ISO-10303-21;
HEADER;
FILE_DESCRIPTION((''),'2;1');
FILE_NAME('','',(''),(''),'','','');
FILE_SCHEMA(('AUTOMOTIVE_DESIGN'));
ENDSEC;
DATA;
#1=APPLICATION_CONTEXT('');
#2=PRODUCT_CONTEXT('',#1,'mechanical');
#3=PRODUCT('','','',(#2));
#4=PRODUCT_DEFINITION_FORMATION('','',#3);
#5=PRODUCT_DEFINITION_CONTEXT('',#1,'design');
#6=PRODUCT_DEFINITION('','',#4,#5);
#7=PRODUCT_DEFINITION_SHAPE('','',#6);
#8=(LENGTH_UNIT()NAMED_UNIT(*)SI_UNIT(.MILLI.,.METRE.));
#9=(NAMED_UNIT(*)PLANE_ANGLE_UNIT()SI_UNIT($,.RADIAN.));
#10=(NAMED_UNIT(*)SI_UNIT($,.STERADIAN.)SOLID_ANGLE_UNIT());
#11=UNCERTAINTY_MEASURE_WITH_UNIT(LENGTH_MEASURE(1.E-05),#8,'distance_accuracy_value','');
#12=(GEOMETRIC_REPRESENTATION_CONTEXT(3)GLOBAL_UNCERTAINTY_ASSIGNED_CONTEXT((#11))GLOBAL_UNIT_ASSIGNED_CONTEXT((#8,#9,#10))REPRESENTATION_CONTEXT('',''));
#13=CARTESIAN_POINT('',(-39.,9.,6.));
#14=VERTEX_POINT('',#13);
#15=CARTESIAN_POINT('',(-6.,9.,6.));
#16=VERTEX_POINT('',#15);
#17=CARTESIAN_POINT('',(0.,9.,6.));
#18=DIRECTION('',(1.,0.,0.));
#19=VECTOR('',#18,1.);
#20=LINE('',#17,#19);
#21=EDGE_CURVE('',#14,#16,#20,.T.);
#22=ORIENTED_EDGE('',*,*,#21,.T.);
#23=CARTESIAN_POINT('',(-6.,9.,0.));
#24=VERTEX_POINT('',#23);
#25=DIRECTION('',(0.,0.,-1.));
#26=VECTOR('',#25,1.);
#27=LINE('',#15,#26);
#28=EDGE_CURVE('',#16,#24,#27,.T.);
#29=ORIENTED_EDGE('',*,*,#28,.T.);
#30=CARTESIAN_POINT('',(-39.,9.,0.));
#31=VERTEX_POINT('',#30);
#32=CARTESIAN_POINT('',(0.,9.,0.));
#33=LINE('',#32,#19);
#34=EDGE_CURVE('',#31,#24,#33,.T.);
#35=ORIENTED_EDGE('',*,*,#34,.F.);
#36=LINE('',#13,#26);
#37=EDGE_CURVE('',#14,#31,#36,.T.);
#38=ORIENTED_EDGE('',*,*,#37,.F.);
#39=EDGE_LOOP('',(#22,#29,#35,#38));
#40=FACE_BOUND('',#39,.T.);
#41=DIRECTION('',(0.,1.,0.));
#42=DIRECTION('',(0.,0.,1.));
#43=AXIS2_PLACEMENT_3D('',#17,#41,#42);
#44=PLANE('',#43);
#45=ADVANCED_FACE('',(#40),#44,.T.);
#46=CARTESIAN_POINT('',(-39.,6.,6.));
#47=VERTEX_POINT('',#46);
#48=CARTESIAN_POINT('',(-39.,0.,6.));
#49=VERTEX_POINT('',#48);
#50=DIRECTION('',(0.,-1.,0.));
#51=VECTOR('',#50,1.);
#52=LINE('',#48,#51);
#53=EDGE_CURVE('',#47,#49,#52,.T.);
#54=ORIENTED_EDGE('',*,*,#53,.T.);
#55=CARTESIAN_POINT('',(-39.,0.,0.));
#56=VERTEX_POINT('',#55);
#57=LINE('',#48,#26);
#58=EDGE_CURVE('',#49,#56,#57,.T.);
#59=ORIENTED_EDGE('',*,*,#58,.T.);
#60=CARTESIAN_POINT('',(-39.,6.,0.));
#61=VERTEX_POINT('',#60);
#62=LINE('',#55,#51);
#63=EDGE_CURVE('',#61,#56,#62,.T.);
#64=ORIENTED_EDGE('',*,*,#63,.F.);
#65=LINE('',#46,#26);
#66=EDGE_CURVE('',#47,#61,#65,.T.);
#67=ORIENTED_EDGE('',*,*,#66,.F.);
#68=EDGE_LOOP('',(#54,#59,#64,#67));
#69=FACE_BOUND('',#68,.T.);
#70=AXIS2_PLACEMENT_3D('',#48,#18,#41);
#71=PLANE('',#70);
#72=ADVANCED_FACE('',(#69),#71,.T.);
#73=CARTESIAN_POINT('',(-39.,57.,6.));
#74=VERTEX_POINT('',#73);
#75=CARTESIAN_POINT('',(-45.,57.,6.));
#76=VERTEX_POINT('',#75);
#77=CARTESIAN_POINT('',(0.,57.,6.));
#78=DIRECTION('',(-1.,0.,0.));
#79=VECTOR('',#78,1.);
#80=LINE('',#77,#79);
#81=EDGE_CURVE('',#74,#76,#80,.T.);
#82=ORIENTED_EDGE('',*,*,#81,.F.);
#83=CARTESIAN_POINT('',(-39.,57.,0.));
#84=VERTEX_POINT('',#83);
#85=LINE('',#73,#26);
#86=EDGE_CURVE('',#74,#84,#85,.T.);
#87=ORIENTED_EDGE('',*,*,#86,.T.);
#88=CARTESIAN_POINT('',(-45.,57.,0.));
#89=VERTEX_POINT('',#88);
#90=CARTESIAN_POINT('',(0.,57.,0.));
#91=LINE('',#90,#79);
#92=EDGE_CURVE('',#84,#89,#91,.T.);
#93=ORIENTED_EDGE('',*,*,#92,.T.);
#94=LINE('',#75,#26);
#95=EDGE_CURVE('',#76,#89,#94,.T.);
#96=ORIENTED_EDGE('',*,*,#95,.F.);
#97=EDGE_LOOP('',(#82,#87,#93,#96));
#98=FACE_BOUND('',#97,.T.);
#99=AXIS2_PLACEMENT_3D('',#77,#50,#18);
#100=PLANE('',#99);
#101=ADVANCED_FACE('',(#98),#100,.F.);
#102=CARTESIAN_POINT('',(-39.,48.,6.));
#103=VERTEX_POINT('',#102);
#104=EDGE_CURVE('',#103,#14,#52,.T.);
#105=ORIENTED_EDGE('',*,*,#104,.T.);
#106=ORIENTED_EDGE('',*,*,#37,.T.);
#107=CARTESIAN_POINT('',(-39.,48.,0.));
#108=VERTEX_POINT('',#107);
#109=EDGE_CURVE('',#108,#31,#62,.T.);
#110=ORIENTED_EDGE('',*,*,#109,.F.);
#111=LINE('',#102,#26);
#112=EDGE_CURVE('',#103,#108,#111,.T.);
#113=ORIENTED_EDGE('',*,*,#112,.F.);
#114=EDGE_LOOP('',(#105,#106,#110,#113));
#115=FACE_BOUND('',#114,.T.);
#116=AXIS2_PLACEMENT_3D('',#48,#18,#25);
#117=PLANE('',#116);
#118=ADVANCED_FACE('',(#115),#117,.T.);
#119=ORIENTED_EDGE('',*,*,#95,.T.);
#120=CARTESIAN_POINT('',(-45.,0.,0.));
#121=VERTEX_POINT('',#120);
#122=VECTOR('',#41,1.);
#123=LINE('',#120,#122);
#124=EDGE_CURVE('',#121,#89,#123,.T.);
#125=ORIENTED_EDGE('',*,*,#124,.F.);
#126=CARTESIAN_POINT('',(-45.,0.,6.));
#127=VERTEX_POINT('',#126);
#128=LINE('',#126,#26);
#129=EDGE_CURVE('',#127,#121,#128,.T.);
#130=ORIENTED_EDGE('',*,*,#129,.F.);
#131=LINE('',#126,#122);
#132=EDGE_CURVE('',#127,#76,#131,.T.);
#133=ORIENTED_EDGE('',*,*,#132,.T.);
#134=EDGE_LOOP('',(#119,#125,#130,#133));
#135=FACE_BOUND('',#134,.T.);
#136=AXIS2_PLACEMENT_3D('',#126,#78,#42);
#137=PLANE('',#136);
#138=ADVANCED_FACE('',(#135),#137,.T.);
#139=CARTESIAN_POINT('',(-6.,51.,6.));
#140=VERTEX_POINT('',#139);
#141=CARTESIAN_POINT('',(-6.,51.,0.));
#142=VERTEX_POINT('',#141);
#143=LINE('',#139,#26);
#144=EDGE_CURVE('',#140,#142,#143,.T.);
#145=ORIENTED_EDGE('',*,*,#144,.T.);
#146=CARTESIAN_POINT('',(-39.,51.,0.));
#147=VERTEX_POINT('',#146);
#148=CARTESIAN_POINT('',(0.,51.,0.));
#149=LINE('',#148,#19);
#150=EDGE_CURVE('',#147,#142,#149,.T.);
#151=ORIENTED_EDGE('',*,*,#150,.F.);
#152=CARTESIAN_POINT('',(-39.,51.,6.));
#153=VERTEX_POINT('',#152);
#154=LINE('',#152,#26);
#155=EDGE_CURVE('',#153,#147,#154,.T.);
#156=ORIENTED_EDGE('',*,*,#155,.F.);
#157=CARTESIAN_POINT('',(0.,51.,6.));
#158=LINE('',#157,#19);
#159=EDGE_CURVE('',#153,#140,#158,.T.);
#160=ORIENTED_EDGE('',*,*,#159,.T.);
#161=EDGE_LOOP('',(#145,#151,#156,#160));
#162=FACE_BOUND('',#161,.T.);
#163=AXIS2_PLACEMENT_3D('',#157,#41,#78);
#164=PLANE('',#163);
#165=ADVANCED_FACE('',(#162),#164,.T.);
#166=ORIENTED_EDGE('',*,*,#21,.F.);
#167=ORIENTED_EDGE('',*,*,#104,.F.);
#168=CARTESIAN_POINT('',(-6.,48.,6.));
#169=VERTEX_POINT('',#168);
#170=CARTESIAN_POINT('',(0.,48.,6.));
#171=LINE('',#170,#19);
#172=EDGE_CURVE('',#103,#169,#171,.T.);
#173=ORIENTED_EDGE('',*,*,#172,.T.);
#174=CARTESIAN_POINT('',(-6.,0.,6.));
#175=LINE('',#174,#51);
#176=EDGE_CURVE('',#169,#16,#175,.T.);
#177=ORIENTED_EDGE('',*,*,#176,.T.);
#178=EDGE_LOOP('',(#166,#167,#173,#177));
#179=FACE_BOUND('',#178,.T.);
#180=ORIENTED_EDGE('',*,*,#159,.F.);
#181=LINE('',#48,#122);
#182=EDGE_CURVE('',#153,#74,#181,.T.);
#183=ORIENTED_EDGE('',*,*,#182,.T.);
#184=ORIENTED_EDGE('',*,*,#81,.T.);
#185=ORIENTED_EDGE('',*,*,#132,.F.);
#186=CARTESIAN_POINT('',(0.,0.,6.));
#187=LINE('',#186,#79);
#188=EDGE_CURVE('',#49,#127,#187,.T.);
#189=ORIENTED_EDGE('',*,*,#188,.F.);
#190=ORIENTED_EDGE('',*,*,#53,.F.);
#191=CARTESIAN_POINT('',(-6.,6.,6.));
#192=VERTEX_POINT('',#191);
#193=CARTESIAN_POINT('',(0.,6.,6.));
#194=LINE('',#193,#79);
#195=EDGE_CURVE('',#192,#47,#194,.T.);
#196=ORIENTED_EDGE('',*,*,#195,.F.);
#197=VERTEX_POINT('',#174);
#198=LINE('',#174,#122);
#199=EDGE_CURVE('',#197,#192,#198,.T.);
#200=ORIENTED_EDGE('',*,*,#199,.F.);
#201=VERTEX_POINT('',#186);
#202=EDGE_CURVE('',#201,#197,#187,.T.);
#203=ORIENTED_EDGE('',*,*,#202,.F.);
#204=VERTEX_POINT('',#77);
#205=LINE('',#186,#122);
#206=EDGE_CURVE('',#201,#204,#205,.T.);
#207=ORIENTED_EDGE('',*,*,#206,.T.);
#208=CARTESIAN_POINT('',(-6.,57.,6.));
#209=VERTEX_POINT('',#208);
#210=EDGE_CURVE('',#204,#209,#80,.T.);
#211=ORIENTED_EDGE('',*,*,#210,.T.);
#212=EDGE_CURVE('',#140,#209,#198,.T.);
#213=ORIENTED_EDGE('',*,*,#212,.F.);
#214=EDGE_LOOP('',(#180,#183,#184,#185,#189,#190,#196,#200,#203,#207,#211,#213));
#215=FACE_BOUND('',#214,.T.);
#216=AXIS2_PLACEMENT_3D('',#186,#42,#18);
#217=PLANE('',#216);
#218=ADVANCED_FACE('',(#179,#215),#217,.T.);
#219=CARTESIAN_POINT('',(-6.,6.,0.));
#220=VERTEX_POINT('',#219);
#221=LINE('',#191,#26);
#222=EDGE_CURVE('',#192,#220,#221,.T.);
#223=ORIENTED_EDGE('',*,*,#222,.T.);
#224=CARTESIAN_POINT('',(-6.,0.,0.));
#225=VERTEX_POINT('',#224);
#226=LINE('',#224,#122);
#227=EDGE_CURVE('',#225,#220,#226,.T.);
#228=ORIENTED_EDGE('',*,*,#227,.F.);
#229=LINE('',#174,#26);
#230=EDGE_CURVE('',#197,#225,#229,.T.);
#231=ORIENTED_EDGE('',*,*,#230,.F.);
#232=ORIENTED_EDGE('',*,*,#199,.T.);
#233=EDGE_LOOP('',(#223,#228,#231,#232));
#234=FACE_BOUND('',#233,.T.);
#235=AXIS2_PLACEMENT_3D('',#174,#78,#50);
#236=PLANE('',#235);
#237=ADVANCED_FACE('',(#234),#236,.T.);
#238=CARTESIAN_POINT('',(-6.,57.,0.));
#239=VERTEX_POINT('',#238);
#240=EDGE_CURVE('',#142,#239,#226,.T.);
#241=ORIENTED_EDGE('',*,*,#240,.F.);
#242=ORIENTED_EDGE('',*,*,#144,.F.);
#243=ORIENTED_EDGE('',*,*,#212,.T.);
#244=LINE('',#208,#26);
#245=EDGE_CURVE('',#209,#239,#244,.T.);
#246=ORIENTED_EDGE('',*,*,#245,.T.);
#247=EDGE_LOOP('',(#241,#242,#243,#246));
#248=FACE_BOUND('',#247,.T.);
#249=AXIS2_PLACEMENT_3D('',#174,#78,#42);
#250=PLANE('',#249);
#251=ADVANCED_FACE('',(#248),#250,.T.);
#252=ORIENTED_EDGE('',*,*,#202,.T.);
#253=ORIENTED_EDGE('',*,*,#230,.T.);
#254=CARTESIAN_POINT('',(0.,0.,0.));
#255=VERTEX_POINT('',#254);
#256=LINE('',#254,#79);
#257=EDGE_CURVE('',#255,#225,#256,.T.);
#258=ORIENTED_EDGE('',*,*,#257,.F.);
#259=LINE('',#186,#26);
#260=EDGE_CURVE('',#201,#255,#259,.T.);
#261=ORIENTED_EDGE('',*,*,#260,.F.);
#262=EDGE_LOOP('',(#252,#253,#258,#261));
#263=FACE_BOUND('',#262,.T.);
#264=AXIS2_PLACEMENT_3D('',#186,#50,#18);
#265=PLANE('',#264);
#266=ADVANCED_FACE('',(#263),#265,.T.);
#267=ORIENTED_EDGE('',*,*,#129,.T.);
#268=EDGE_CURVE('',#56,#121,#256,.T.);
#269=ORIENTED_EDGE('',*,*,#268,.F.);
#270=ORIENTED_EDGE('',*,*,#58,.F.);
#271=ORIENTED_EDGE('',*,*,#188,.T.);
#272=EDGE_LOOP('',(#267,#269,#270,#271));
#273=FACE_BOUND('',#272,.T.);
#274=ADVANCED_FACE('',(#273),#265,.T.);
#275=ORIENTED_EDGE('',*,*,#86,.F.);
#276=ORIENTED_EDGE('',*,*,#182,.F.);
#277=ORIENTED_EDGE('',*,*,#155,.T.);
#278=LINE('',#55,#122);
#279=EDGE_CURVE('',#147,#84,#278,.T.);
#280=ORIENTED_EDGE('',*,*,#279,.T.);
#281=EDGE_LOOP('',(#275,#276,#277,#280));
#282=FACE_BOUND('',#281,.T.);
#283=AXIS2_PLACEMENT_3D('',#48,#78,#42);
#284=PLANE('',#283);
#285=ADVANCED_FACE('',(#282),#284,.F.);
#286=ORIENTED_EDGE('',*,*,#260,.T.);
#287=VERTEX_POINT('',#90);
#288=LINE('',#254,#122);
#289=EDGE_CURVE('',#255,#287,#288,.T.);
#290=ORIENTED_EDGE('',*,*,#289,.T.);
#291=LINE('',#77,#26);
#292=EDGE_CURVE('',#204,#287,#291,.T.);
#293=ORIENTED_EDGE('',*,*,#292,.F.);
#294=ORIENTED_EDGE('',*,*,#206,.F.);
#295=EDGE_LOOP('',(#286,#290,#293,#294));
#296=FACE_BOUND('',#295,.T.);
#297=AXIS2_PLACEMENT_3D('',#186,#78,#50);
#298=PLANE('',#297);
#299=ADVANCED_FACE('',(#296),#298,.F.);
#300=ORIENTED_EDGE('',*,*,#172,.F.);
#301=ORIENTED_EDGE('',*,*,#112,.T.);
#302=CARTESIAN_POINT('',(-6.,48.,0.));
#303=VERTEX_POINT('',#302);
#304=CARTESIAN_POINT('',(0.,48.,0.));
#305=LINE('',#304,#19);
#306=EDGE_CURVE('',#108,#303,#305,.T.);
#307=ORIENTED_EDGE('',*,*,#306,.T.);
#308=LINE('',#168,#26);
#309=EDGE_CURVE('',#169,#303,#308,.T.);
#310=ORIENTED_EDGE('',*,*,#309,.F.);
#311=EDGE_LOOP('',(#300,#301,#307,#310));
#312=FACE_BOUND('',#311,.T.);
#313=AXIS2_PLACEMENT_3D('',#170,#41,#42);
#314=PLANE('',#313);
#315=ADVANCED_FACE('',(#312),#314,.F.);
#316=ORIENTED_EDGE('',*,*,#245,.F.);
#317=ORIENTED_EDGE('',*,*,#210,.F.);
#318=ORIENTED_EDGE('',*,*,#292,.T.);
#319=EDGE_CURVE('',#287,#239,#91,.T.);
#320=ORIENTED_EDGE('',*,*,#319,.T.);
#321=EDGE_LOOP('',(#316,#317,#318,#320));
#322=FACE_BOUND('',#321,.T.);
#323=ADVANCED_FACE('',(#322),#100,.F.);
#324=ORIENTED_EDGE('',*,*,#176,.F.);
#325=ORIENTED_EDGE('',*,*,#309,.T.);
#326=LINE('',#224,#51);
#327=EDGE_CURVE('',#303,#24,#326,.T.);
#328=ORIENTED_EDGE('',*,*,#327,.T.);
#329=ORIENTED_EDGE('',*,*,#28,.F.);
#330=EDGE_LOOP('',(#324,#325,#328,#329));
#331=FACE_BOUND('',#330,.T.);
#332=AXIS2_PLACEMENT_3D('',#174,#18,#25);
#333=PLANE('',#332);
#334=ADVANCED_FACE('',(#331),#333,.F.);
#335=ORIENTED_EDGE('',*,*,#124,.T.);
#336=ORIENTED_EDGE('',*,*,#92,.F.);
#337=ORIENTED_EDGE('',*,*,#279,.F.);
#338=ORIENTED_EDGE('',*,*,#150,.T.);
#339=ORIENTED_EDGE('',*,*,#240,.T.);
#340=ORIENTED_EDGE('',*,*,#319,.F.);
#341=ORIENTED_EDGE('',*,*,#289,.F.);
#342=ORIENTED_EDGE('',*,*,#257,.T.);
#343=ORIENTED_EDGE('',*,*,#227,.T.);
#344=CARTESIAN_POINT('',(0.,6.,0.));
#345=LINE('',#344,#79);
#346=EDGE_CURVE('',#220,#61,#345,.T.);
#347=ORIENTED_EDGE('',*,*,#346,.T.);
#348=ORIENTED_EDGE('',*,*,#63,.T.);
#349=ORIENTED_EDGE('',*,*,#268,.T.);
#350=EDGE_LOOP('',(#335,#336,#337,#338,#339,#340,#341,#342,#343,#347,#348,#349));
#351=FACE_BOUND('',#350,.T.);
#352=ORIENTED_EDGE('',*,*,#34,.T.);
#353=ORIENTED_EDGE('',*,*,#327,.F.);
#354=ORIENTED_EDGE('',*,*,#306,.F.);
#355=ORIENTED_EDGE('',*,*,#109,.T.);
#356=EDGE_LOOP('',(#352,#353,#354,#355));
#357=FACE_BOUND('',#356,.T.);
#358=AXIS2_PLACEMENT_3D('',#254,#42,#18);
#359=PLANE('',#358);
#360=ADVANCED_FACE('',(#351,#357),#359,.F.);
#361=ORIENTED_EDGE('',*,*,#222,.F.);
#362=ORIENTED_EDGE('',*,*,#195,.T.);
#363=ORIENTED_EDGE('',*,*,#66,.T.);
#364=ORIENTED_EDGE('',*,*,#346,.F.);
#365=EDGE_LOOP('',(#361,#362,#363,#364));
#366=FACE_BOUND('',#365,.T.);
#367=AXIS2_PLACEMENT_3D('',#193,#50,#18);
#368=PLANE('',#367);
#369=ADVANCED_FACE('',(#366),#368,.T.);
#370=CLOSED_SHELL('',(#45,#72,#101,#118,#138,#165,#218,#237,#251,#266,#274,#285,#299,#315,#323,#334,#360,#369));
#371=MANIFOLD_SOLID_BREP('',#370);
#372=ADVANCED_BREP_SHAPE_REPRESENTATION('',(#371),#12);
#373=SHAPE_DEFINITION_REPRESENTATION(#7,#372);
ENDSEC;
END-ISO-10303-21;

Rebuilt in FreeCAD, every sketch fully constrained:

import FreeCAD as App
import Part
import Sketcher

doc = App.newDocument("Part")
body = doc.addObject("PartDesign::Body", "Body")

# Sketch on XY plane
sketch1 = body.newObject("Sketcher::SketchObject", "Sketch")
sketch1.AttachmentSupport = (doc.getObject("XY_Plane"), [""])
sketch1.MapMode = "FlatFace"
sketch1.addGeometry([
    Part.LineSegment(App.Vector(-6, 0, 0), App.Vector(0, 0, 0)),  # 0
    Part.LineSegment(App.Vector(0, 0, 0), App.Vector(0, 57, 0)),  # 1
    Part.LineSegment(App.Vector(0, 57, 0), App.Vector(-6, 57, 0)),  # 2
    Part.LineSegment(App.Vector(-6, 57, 0), App.Vector(-6, 51, 0)),  # 3
    Part.LineSegment(App.Vector(-6, 51, 0), App.Vector(-39, 51, 0)),  # 4
    Part.LineSegment(App.Vector(-39, 51, 0), App.Vector(-39, 57, 0)),  # 5
    Part.LineSegment(App.Vector(-39, 57, 0), App.Vector(-45, 57, 0)),  # 6
    Part.LineSegment(App.Vector(-45, 57, 0), App.Vector(-45, 0, 0)),  # 7
    Part.LineSegment(App.Vector(-45, 0, 0), App.Vector(-39, 0, 0)),  # 8
    Part.LineSegment(App.Vector(-39, 0, 0), App.Vector(-39, 6, 0)),  # 9
    Part.LineSegment(App.Vector(-39, 6, 0), App.Vector(-6, 6, 0)),  # 10
    Part.LineSegment(App.Vector(-6, 6, 0), App.Vector(-6, 0, 0)),  # 11
    Part.LineSegment(App.Vector(-6, 9, 0), App.Vector(-39, 9, 0)),  # 12
    Part.LineSegment(App.Vector(-39, 9, 0), App.Vector(-39, 48, 0)),  # 13
    Part.LineSegment(App.Vector(-39, 48, 0), App.Vector(-6, 48, 0)),  # 14
    Part.LineSegment(App.Vector(-6, 48, 0), App.Vector(-6, 9, 0)),  # 15
], False)
sketch1.addConstraint([
    Sketcher.Constraint("Coincident", 0, 2, 1, 1),
    Sketcher.Constraint("Coincident", 1, 2, 2, 1),
    Sketcher.Constraint("Coincident", 2, 2, 3, 1),
    Sketcher.Constraint("Coincident", 3, 2, 4, 1),
    Sketcher.Constraint("Coincident", 4, 2, 5, 1),
    Sketcher.Constraint("Coincident", 5, 2, 6, 1),
    Sketcher.Constraint("Coincident", 6, 2, 7, 1),
    Sketcher.Constraint("Coincident", 7, 2, 8, 1),
    Sketcher.Constraint("Coincident", 8, 2, 9, 1),
    Sketcher.Constraint("Coincident", 9, 2, 10, 1),
    Sketcher.Constraint("Coincident", 10, 2, 11, 1),
    Sketcher.Constraint("Coincident", 11, 2, 0, 1),
    Sketcher.Constraint("Coincident", 12, 2, 13, 1),
    Sketcher.Constraint("Coincident", 13, 2, 14, 1),
    Sketcher.Constraint("Coincident", 14, 2, 15, 1),
    Sketcher.Constraint("Coincident", 15, 2, 12, 1),
    Sketcher.Constraint("Horizontal", 0),
    Sketcher.Constraint("Vertical", 1),
    Sketcher.Constraint("Horizontal", 2),
    Sketcher.Constraint("Vertical", 3),
    Sketcher.Constraint("Horizontal", 4),
    Sketcher.Constraint("Vertical", 5),
    Sketcher.Constraint("Horizontal", 6),
    Sketcher.Constraint("Vertical", 7),
    Sketcher.Constraint("Horizontal", 8),
    Sketcher.Constraint("Vertical", 9),
    Sketcher.Constraint("Horizontal", 10),
    Sketcher.Constraint("Vertical", 11),
    Sketcher.Constraint("Horizontal", 12),
    Sketcher.Constraint("Vertical", 13),
    Sketcher.Constraint("Horizontal", 14),
    Sketcher.Constraint("Vertical", 15),
    Sketcher.Constraint("Coincident", 0, 2, -1, 1),
    Sketcher.Constraint("PointOnObject", 7, 2, -1),
    Sketcher.Constraint("Horizontal", 2, 2, 5, 2),
    Sketcher.Constraint("Vertical", 5, 2, 8, 2),
    Sketcher.Constraint("Vertical", 3, 2, 10, 2),
    Sketcher.Constraint("Vertical", 9, 2, 12, 2),
    Sketcher.Constraint("Vertical", 11, 2, 14, 2),
    Sketcher.Constraint("Equal", 2, 6),
    Sketcher.Constraint("Equal", 8, 3),
    Sketcher.Constraint("Equal", 5, 9),
    Sketcher.Constraint("DistanceX", 0, 1, 0, 2, 6.0),
    Sketcher.Constraint("DistanceX", 4, 2, 4, 1, 33.0),
    Sketcher.Constraint("DistanceY", 1, 1, 1, 2, 57.0),
    Sketcher.Constraint("DistanceY", 13, 1, 13, 2, 39.0),
    Sketcher.Constraint("DistanceY", -1, 1, 12, 2, 9.0),
])
pad1 = body.newObject("PartDesign::Pad", "Pad")
pad1.Profile = sketch1
pad1.Length = 6

doc.recompute()
